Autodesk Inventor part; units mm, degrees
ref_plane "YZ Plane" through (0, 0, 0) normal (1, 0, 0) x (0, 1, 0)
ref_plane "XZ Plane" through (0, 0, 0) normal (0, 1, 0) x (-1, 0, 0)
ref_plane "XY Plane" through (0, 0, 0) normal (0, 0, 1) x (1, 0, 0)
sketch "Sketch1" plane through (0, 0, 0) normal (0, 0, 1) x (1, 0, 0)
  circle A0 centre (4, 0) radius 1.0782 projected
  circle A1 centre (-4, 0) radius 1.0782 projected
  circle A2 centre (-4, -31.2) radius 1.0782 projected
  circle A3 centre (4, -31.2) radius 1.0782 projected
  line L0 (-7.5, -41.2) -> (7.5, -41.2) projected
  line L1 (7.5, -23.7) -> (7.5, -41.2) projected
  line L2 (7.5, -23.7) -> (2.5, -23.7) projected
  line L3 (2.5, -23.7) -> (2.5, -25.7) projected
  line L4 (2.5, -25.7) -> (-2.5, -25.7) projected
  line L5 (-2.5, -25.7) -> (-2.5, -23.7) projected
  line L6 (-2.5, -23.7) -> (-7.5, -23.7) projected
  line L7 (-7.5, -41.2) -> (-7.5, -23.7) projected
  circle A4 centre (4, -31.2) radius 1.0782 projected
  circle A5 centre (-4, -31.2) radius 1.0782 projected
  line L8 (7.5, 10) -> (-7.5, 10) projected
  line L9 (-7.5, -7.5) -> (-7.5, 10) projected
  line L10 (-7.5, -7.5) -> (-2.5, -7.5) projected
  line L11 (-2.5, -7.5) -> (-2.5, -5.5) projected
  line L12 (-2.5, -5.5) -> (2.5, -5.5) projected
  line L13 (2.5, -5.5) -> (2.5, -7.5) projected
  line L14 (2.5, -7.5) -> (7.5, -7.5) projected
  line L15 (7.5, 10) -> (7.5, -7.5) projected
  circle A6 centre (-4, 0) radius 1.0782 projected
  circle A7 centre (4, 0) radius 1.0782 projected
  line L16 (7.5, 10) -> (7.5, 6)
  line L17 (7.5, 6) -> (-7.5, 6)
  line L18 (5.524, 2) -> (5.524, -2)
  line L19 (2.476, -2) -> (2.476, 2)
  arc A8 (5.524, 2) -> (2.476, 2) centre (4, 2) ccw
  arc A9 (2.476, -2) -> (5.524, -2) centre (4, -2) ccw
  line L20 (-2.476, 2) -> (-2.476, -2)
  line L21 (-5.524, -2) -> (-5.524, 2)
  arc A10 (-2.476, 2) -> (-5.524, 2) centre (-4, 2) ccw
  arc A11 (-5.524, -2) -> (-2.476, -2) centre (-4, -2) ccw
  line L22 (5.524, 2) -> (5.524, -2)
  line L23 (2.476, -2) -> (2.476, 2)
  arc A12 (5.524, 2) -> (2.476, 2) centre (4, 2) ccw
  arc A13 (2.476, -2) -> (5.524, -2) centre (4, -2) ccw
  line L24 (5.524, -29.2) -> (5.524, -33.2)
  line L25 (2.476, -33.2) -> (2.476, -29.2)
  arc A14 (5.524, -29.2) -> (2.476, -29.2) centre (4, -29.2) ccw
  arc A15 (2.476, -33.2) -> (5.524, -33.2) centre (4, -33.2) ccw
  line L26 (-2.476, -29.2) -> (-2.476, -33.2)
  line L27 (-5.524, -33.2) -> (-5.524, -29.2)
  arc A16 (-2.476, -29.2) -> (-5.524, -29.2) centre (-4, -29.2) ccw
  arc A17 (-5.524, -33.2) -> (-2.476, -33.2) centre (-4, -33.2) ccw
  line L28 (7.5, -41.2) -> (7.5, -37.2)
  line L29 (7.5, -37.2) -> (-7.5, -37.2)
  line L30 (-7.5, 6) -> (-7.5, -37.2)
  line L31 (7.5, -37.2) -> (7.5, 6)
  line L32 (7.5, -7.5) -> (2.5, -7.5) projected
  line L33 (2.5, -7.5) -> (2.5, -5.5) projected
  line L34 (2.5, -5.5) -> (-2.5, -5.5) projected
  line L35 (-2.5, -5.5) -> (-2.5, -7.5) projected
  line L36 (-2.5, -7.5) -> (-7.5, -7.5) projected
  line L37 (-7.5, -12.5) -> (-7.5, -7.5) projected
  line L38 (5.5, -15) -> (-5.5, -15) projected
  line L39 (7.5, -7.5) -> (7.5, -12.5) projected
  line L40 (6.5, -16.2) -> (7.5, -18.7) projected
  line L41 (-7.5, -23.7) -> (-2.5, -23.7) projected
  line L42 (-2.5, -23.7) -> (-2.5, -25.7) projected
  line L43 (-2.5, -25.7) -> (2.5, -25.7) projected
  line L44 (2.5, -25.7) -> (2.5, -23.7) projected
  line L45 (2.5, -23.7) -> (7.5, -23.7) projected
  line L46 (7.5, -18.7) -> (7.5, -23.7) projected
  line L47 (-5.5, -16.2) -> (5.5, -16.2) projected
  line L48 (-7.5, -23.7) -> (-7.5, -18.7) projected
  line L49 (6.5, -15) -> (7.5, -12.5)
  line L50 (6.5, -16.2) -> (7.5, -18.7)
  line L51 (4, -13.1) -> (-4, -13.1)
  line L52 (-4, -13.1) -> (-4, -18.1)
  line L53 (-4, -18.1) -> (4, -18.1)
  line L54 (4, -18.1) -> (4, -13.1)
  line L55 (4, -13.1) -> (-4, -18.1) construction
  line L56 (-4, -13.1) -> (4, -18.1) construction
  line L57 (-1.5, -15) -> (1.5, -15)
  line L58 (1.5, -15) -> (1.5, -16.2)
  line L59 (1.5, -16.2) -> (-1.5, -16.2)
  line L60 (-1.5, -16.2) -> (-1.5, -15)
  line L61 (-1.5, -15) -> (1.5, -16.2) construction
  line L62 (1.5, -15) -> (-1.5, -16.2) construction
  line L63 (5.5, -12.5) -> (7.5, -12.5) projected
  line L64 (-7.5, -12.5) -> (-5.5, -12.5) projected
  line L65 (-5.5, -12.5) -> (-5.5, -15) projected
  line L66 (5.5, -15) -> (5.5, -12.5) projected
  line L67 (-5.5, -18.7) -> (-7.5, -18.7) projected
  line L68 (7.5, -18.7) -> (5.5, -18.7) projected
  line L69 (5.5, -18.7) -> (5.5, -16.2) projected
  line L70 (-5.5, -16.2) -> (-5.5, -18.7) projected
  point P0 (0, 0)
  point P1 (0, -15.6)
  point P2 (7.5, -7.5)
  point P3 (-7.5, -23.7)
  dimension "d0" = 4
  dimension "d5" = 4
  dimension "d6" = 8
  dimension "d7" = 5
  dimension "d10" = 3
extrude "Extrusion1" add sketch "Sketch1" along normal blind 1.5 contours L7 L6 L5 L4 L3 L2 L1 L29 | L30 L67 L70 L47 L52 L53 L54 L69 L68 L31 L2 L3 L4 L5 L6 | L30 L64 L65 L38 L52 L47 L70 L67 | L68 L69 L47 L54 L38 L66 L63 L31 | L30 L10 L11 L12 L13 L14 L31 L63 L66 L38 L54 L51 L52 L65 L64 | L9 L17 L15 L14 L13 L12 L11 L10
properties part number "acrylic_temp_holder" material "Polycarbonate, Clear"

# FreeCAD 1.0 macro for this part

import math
import FreeCAD as App
import Part
import Sketcher

doc = App.newDocument("Part")
body = doc.addObject("PartDesign::Body", "Body")

sketch1 = body.newObject("Sketcher::SketchObject", "Sketch")
sketch1.AttachmentSupport = (doc.getObject("XY_Plane"), [""])
sketch1.MapMode = "FlatFace"
sketch1.addGeometry([
    Part.LineSegment(App.Vector(-7.5, -37.2, 0), App.Vector(7.5, -37.2, 0)),
    Part.LineSegment(App.Vector(7.5, -37.2, 0), App.Vector(7.5, 6, 0)),
    Part.LineSegment(App.Vector(7.5, 6, 0), App.Vector(-7.5, 6, 0)),
    Part.LineSegment(App.Vector(-7.5, 6, 0), App.Vector(-7.5, -37.2, 0)),
    Part.ArcOfCircle(Part.Circle(App.Vector(-4, -29.2, 0), App.Vector(0, 0, 1), 1.5), math.radians(0), math.radians(180)),
    Part.LineSegment(App.Vector(-2.5, -29.2, 0), App.Vector(-2.5, -33.2, 0)),
    Part.ArcOfCircle(Part.Circle(App.Vector(-4, -33.2, 0), App.Vector(0, 0, 1), 1.5), math.radians(180), math.radians(360)),
    Part.LineSegment(App.Vector(-5.5, -33.2, 0), App.Vector(-5.5, -29.2, 0)),
    Part.ArcOfCircle(Part.Circle(App.Vector(4, -29.2, 0), App.Vector(0, 0, 1), 1.5), math.radians(0), math.radians(180)),
    Part.LineSegment(App.Vector(5.5, -29.2, 0), App.Vector(5.5, -33.2, 0)),
    Part.ArcOfCircle(Part.Circle(App.Vector(4, -33.2, 0), App.Vector(0, 0, 1), 1.5), math.radians(180), math.radians(360)),
    Part.LineSegment(App.Vector(2.5, -33.2, 0), App.Vector(2.5, -29.2, 0)),
    Part.LineSegment(App.Vector(-4, -18.1, 0), App.Vector(-4, -13.1, 0)),
    Part.LineSegment(App.Vector(-4, -13.1, 0), App.Vector(4, -13.1, 0)),
    Part.LineSegment(App.Vector(4, -13.1, 0), App.Vector(4, -18.1, 0)),
    Part.LineSegment(App.Vector(4, -18.1, 0), App.Vector(-4, -18.1, 0)),
    Part.LineSegment(App.Vector(-2.5, 2, 0), App.Vector(-2.5, -2, 0)),
    Part.ArcOfCircle(Part.Circle(App.Vector(-4, -2, 0), App.Vector(0, 0, 1), 1.5), math.radians(180), math.radians(360)),
    Part.LineSegment(App.Vector(-5.5, -2, 0), App.Vector(-5.5, 2, 0)),
    Part.ArcOfCircle(Part.Circle(App.Vector(-4, 2, 0), App.Vector(0, 0, 1), 1.5), math.radians(0), math.radians(180)),
    Part.ArcOfCircle(Part.Circle(App.Vector(4, 2, 0), App.Vector(0, 0, 1), 1.5), math.radians(0), math.radians(180)),
    Part.LineSegment(App.Vector(5.5, 2, 0), App.Vector(5.5, -2, 0)),
    Part.ArcOfCircle(Part.Circle(App.Vector(4, -2, 0), App.Vector(0, 0, 1), 1.5), math.radians(180), math.radians(360)),
    Part.LineSegment(App.Vector(2.5, -2, 0), App.Vector(2.5, 2, 0)),
], False)
sketch1.addConstraint([
    Sketcher.Constraint("Coincident", 0, 2, 1, 1),
    Sketcher.Constraint("Coincident", 1, 2, 2, 1),
    Sketcher.Constraint("Coincident", 2, 2, 3, 1),
    Sketcher.Constraint("Coincident", 3, 2, 0, 1),
    Sketcher.Constraint("Tangent", 4, 1, 5, 1),
    Sketcher.Constraint("Tangent", 5, 2, 6, 2),
    Sketcher.Constraint("Tangent", 6, 1, 7, 1),
    Sketcher.Constraint("Tangent", 7, 2, 4, 2),
    Sketcher.Constraint("Tangent", 8, 1, 9, 1),
    Sketcher.Constraint("Tangent", 9, 2, 10, 2),
    Sketcher.Constraint("Tangent", 10, 1, 11, 1),
    Sketcher.Constraint("Tangent", 11, 2, 8, 2),
    Sketcher.Constraint("Coincident", 12, 2, 13, 1),
    Sketcher.Constraint("Coincident", 13, 2, 14, 1),
    Sketcher.Constraint("Coincident", 14, 2, 15, 1),
    Sketcher.Constraint("Coincident", 15, 2, 12, 1),
    Sketcher.Constraint("Tangent", 16, 2, 17, 2),
    Sketcher.Constraint("Tangent", 17, 1, 18, 1),
    Sketcher.Constraint("Tangent", 18, 2, 19, 2),
    Sketcher.Constraint("Tangent", 19, 1, 16, 1),
    Sketcher.Constraint("Tangent", 20, 1, 21, 1),
    Sketcher.Constraint("Tangent", 21, 2, 22, 2),
    Sketcher.Constraint("Tangent", 22, 1, 23, 1),
    Sketcher.Constraint("Tangent", 23, 2, 20, 2),
    Sketcher.Constraint("Horizontal", 0),
    Sketcher.Constraint("Vertical", 1),
    Sketcher.Constraint("Horizontal", 2),
    Sketcher.Constraint("Vertical", 3),
    Sketcher.Constraint("Vertical", 5),
    Sketcher.Constraint("Vertical", 7),
    Sketcher.Constraint("Vertical", 9),
    Sketcher.Constraint("Vertical", 11),
    Sketcher.Constraint("Vertical", 12),
    Sketcher.Constraint("Horizontal", 13),
    Sketcher.Constraint("Vertical", 14),
    Sketcher.Constraint("Horizontal", 15),
    Sketcher.Constraint("Vertical", 16),
    Sketcher.Constraint("Vertical", 18),
    Sketcher.Constraint("Vertical", 21),
    Sketcher.Constraint("Vertical", 23),
    Sketcher.Constraint("Equal", 6, 8),
    Sketcher.Constraint("Equal", 10, 17),
    Sketcher.Constraint("Equal", 19, 20),
    Sketcher.Constraint("Symmetric", 17, 3, 20, 3, -1, 1),
    Sketcher.Constraint("Symmetric", 4, 3, 8, 3, -2),
    Sketcher.Constraint("Horizontal", 6, 3, 10, 3),
    Sketcher.Constraint("Horizontal", 19, 3, 20, 3),
    Sketcher.Constraint("Horizontal", 17, 3, 22, 3),
    Sketcher.Constraint("Vertical", 6, 3, 17, 3),
    Sketcher.Constraint("Vertical", 19, 3, 12, 2),
    Sketcher.Constraint("Vertical", 22, 3, 13, 2),
    Sketcher.Constraint("Equal", 11, 16),
    Sketcher.Constraint("DistanceX", 13, 1, 13, 2, 8.0),
    Sketcher.Constraint("DistanceY", 5, 2, 5, 1, 4.0),
    Sketcher.Constraint("DistanceY", 12, 1, 12, 2, 5.0),
    Sketcher.Constraint("DistanceY", 0, 2, 10, 3, 4.0),
    Sketcher.Constraint("DistanceY", 20, 3, 1, 2, 4.0),
    Sketcher.Constraint("DistanceX", 0, 1, 0, 2, 15.0),
    Sketcher.Constraint("DistanceY", 1, 1, 1, 2, 43.2),
    Sketcher.Constraint("Radius", 4, 1.524),
    Sketcher.Constraint("DistanceX", -1, 1, 0, 2, 7.5),
    Sketcher.Constraint("DistanceY", 12, 2, -1, 1, 13.1),
])
pad1 = body.newObject("PartDesign::Pad", "Pad")
pad1.Profile = sketch1
pad1.Length = 1.5

doc.recompute()
